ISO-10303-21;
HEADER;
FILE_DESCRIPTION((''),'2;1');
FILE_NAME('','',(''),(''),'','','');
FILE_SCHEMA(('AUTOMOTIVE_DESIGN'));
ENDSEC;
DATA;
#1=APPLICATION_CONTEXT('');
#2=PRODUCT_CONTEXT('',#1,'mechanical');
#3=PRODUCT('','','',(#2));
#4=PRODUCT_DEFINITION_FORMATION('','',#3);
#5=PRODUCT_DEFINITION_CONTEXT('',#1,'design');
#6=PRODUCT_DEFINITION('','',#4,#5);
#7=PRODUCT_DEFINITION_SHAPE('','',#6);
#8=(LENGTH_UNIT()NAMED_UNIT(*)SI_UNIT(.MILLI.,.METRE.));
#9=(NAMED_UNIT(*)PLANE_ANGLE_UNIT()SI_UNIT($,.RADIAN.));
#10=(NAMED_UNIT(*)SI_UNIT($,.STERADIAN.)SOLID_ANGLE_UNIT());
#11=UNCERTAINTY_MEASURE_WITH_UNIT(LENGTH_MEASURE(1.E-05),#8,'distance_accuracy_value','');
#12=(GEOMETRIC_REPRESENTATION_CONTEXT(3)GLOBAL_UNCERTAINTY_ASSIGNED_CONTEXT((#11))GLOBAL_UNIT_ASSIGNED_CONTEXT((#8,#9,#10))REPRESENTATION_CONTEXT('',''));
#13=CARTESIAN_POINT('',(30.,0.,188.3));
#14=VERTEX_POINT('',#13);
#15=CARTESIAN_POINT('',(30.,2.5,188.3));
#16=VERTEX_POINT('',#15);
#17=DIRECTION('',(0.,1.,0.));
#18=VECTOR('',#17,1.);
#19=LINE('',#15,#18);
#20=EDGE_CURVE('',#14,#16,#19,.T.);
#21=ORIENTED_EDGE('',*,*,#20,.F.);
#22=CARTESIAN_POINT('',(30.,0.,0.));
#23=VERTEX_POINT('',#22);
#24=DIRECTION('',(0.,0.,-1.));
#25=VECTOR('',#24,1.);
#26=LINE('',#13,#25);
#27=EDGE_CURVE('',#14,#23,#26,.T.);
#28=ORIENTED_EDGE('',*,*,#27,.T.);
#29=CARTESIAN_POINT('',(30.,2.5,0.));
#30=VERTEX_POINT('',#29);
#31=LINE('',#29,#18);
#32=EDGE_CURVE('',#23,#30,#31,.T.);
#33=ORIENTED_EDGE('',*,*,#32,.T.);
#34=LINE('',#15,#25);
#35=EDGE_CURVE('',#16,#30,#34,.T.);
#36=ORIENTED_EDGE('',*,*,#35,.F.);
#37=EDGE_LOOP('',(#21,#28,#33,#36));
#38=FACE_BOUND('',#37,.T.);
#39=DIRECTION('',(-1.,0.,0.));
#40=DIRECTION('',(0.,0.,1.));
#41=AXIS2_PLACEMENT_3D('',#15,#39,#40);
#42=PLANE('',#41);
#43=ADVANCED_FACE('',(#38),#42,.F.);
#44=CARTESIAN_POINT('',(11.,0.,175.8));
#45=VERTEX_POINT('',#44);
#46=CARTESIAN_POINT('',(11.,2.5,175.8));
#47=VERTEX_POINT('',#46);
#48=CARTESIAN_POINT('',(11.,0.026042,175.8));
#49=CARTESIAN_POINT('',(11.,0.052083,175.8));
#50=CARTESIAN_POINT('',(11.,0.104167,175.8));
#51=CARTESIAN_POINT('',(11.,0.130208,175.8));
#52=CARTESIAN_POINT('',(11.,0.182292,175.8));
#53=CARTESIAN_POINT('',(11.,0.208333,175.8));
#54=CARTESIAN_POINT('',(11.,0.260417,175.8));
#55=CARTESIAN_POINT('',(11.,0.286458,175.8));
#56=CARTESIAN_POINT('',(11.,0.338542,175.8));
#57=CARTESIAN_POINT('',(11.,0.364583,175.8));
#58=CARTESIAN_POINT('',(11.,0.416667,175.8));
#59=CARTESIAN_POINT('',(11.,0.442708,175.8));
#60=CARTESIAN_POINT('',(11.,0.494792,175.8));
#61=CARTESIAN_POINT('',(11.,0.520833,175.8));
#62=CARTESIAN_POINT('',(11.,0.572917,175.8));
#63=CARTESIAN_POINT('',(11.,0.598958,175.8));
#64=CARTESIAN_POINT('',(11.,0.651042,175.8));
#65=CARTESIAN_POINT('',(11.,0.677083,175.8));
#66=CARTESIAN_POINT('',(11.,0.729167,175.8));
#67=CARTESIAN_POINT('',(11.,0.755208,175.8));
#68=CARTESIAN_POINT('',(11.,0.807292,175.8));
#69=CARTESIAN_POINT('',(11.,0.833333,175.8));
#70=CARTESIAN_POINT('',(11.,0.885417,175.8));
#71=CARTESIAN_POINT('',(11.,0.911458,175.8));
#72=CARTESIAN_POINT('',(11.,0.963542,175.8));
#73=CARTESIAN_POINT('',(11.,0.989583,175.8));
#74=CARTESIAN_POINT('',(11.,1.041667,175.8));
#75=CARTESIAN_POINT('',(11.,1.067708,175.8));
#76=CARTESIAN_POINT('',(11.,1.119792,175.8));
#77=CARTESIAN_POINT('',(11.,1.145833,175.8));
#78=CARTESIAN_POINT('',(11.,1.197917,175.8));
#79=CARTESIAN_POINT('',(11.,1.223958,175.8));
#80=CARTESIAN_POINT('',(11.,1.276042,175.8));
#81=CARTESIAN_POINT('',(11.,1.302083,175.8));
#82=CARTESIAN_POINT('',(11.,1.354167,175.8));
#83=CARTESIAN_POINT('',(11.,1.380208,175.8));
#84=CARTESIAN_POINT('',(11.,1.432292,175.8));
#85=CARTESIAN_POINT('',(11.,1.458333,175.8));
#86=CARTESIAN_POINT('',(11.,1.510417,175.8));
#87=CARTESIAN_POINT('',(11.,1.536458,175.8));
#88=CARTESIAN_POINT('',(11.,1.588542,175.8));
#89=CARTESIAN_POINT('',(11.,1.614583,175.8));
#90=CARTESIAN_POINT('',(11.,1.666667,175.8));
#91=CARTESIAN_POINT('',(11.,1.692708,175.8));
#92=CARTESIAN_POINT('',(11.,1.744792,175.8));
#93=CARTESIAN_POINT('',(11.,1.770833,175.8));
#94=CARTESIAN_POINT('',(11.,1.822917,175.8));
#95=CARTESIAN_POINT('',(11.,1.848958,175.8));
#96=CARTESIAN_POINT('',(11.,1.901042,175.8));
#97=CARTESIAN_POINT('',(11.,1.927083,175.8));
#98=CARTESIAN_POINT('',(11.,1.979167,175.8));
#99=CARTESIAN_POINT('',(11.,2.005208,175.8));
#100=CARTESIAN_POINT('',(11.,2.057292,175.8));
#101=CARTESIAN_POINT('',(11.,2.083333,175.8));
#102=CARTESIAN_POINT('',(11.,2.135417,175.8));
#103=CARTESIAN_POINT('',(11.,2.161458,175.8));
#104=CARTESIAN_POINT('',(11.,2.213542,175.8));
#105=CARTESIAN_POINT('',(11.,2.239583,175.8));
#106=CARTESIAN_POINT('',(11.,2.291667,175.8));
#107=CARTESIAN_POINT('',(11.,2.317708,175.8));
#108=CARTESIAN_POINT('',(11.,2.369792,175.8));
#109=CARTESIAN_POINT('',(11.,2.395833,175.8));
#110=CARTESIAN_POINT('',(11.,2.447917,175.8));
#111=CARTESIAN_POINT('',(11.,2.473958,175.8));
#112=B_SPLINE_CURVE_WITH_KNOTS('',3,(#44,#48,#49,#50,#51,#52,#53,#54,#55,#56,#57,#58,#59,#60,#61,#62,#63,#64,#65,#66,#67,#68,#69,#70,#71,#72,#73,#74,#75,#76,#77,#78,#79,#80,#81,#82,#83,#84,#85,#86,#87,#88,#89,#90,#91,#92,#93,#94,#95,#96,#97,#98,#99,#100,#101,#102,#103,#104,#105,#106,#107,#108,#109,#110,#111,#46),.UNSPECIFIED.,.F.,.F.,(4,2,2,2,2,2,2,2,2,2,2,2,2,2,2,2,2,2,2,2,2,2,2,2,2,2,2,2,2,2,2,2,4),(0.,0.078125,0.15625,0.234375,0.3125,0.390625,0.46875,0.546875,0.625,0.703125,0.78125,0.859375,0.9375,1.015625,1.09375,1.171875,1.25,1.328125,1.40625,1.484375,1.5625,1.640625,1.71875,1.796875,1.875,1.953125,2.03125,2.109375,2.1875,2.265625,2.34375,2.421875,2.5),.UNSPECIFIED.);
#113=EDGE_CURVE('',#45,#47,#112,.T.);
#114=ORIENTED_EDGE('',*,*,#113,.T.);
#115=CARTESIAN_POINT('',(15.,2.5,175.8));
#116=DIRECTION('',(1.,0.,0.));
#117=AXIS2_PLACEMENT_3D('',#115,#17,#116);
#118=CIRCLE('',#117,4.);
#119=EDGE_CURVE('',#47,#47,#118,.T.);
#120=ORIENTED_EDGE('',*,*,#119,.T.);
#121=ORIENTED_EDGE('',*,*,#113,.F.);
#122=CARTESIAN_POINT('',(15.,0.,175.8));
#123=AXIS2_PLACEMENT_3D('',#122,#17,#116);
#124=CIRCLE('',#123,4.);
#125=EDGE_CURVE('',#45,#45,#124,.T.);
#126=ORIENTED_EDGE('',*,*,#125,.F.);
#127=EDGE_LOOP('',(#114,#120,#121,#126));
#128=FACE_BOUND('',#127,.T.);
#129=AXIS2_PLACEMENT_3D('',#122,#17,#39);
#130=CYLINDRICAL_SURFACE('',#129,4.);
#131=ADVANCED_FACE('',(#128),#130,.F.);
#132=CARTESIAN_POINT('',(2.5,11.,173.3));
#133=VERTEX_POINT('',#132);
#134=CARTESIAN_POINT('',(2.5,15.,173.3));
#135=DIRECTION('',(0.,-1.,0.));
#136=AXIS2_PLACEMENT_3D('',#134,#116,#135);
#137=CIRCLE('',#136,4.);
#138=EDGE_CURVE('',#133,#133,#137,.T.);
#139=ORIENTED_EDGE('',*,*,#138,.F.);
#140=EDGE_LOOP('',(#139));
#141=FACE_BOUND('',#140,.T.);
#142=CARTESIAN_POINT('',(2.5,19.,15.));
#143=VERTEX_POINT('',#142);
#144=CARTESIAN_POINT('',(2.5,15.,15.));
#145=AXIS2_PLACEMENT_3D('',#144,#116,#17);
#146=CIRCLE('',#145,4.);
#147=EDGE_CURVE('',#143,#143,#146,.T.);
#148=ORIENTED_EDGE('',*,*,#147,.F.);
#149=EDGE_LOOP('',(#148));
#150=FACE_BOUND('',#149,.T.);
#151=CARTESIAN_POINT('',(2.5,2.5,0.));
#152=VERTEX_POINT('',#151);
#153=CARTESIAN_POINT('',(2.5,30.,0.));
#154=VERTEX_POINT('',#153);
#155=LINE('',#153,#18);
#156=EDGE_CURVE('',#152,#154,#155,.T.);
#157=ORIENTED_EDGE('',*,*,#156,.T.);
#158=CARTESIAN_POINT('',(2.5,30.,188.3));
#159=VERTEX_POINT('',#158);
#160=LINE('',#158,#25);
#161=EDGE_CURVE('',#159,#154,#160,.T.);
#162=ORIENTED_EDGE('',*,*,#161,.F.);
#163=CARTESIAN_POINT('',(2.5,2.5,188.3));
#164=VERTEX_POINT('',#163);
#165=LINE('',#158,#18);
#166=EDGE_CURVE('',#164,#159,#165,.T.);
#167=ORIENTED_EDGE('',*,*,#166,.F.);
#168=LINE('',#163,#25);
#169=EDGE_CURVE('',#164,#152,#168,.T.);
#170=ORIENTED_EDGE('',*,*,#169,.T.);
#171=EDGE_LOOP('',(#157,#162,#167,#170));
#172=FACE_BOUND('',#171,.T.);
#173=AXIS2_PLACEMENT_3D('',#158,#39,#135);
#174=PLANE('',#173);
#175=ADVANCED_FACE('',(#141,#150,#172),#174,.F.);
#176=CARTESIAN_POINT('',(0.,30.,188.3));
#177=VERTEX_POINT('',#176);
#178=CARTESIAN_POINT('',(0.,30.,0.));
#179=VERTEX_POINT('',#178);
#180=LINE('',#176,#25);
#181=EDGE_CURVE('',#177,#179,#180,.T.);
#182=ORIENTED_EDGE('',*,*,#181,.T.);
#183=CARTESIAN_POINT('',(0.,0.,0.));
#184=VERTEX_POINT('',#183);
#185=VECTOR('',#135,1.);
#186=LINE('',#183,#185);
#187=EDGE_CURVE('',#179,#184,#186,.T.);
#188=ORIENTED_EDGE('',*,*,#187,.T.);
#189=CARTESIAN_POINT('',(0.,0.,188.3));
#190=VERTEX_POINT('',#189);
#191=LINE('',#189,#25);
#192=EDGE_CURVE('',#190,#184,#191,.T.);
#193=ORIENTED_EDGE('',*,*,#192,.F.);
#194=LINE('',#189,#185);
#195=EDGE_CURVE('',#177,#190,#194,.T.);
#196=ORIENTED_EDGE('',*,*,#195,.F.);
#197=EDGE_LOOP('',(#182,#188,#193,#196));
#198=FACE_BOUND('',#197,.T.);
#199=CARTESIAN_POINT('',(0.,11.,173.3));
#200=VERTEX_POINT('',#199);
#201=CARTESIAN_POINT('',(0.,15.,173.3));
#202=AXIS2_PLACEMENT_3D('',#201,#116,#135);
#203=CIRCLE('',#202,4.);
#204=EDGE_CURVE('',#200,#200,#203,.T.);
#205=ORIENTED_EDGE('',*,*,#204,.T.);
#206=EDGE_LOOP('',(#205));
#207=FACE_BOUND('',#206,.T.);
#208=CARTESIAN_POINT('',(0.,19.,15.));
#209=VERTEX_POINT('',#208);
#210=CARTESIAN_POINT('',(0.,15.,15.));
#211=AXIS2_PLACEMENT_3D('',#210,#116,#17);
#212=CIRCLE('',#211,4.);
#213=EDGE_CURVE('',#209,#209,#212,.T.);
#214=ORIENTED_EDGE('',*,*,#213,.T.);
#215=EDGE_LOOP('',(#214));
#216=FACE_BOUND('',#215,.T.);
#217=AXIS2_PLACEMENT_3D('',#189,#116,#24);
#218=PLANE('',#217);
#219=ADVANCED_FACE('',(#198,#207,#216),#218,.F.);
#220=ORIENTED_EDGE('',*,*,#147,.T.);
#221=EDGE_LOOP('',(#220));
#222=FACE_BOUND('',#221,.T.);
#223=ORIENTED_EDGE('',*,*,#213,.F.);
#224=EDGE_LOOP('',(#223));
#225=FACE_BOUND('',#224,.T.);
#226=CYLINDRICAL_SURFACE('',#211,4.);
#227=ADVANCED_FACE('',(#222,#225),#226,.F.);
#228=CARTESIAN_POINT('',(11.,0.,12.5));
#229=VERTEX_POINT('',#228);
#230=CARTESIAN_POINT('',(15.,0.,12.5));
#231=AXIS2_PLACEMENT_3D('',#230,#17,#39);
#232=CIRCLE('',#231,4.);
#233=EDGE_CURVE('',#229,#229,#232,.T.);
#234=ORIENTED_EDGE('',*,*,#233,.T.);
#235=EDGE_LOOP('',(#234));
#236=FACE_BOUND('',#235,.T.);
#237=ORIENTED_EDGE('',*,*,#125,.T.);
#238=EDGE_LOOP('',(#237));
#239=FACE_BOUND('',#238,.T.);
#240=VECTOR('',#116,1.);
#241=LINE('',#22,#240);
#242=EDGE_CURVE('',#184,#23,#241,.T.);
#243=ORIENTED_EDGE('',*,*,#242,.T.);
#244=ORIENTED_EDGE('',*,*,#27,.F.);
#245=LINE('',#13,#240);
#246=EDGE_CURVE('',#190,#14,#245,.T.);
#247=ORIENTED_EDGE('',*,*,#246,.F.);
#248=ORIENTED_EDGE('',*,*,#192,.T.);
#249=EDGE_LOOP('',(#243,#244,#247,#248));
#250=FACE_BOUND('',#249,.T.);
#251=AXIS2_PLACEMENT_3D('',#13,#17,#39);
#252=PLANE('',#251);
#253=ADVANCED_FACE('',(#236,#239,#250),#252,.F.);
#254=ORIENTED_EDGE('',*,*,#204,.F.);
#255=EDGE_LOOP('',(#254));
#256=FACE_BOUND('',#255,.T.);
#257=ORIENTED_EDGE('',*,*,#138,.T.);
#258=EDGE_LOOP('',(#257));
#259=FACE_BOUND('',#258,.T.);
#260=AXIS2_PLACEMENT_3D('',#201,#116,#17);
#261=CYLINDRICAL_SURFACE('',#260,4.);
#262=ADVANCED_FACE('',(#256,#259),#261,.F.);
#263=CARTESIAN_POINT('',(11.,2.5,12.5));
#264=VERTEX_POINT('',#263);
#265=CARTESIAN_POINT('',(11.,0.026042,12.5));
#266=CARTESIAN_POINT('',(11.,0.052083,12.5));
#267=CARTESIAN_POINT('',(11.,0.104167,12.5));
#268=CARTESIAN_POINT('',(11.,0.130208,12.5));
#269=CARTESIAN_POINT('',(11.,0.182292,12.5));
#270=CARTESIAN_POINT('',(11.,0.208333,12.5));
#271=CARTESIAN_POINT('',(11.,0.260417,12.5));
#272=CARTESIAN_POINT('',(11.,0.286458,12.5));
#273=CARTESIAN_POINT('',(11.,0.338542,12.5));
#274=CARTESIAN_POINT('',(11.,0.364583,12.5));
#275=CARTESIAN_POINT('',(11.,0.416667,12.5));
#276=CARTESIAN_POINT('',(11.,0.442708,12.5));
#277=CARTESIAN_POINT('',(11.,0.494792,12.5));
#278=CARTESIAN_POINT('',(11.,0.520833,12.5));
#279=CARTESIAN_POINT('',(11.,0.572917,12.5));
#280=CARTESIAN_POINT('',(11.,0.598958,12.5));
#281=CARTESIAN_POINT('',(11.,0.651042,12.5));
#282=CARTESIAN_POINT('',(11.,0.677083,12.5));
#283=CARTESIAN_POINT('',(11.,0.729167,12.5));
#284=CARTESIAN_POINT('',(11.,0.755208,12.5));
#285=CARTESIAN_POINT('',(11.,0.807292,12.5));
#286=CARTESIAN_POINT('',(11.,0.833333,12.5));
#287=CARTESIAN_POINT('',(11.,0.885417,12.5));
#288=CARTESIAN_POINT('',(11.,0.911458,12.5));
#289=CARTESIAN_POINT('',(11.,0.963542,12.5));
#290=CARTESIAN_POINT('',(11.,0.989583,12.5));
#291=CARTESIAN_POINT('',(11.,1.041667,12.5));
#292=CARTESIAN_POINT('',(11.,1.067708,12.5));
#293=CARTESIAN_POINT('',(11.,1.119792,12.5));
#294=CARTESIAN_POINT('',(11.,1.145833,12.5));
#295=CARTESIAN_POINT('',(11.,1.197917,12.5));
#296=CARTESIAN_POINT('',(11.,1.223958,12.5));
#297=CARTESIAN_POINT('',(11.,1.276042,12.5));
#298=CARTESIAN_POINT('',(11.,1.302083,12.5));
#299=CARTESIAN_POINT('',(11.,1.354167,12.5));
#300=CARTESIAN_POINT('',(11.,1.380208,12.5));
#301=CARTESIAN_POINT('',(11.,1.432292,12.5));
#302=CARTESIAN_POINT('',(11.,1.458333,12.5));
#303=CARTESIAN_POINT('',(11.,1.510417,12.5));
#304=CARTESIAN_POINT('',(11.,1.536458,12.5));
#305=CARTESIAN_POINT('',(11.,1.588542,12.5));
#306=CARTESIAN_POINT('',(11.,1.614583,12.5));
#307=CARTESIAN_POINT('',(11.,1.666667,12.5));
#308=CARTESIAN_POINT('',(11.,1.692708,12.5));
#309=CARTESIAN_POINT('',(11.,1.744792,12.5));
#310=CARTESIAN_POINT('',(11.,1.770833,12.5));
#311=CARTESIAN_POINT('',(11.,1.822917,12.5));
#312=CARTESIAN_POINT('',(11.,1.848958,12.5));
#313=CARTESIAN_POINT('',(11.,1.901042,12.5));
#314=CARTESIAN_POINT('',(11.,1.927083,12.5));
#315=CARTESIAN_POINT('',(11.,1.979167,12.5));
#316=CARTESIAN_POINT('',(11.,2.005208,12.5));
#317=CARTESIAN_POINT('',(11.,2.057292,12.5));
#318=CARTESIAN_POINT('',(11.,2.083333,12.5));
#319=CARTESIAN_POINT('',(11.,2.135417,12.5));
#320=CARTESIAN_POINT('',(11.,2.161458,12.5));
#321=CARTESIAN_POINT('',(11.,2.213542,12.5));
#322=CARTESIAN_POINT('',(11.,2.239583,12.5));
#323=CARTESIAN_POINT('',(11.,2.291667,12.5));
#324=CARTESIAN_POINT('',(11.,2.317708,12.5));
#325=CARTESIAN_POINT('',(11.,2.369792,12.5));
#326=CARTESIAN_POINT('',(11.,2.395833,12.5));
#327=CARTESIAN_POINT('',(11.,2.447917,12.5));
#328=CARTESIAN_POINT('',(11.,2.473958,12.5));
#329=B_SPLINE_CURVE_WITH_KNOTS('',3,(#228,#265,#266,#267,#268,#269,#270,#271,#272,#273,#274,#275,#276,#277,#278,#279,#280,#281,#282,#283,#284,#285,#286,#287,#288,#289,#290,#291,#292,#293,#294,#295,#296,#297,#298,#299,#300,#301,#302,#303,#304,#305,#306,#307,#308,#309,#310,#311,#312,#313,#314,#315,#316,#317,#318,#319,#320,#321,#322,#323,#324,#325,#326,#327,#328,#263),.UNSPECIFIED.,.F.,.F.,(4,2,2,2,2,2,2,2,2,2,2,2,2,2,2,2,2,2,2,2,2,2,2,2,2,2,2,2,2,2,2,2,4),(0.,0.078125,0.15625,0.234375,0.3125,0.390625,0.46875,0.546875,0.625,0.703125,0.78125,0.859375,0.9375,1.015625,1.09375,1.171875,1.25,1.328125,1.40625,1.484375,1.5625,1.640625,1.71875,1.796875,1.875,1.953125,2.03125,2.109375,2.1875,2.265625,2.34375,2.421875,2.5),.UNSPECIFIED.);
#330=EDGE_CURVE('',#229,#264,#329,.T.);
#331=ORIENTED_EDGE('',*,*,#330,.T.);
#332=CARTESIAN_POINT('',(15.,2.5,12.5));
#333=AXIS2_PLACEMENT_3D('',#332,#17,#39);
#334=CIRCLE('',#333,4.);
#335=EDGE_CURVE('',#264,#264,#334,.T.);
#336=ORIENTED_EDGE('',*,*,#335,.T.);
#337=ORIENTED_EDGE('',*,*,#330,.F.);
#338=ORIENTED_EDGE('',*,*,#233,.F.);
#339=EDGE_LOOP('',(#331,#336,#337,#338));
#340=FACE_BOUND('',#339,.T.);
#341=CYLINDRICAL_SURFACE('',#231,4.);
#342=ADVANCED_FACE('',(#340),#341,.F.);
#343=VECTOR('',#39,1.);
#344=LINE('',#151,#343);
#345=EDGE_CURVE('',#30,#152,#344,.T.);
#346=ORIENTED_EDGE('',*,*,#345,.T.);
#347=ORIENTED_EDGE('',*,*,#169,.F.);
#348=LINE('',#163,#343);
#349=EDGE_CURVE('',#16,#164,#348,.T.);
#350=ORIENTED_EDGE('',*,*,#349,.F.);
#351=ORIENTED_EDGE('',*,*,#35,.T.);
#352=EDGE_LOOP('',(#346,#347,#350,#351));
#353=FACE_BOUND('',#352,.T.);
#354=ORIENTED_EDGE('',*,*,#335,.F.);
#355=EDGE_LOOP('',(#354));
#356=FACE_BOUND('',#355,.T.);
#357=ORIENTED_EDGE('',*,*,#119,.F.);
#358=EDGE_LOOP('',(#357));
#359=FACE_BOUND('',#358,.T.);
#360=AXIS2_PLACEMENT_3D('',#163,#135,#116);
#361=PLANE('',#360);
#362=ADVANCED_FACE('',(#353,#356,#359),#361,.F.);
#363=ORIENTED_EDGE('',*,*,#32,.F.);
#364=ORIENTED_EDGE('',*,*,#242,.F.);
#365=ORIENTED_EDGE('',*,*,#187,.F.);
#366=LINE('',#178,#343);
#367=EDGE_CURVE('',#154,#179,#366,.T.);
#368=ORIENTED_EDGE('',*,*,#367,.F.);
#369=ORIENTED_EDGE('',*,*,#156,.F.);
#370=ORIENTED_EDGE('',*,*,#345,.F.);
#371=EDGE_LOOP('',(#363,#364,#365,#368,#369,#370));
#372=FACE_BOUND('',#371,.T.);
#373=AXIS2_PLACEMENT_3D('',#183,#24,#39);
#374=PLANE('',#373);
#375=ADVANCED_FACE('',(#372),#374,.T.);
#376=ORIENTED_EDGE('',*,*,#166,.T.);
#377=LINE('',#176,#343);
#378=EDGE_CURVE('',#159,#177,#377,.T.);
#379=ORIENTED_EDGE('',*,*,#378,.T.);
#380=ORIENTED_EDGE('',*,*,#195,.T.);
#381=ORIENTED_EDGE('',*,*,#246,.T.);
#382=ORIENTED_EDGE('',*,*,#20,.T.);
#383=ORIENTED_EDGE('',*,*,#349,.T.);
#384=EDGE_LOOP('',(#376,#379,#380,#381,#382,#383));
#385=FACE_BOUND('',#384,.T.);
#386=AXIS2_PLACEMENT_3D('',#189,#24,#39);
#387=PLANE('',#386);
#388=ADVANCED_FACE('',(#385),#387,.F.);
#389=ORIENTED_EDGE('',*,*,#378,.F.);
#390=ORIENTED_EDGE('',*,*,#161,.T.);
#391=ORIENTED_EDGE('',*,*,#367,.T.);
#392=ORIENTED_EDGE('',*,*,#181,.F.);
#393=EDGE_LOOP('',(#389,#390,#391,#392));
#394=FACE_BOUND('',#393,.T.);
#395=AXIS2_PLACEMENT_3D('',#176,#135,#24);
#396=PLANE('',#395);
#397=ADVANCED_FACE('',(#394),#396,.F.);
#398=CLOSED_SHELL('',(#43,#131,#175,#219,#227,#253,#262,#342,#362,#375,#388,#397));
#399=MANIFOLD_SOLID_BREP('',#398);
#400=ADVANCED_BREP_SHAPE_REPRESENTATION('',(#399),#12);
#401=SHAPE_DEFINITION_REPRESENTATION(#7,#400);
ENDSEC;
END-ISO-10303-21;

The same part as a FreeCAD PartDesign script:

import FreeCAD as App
import Part
import Sketcher

V = App.Vector
Q = App.Units.Quantity

doc = App.newDocument("Part")
params = doc.addObject("Spreadsheet::Sheet", "Params")
for row, (alias, value) in enumerate([
    ("sketch1_width", "30 mm"),
    ("sketch1_width2", "27.5 mm"),
    ("pad1_length", "188.3 mm"),
    ("sketch2_diameter", "8 mm"),
    ("sketch3_diameter", "8 mm"),
], start=1):
    params.set(f"A{row}", alias)
    params.set(f"B{row}", "=" + value)
    params.setAlias(f"B{row}", alias)

body = doc.addObject("PartDesign::Body", "Body")

# Sketch on XY plane
sketch1 = doc.addObject("Sketcher::SketchObject", "Sketch")
body.addObject(sketch1)
sketch1.AttachmentSupport = (doc.XY_Plane, [""])
sketch1.MapMode = "FlatFace"
sketch1.addGeometry(Part.LineSegment(V(0, 30, 0), V(0, 0, 0)), False)
sketch1.addGeometry(Part.LineSegment(V(0, 0, 0), V(30, 0, 0)), False)
sketch1.addGeometry(Part.LineSegment(V(30, 0, 0), V(30, 2.5, 0)), False)
sketch1.addGeometry(Part.LineSegment(V(30, 2.5, 0), V(2.5, 2.5, 0)), False)
sketch1.addGeometry(Part.LineSegment(V(2.5, 2.5, 0), V(2.5, 30, 0)), False)
sketch1.addGeometry(Part.LineSegment(V(2.5, 30, 0), V(0, 30, 0)), False)
sketch1.addConstraint(Sketcher.Constraint("Coincident", 0, 2, 1, 1))
sketch1.addConstraint(Sketcher.Constraint("Coincident", 1, 2, 2, 1))
sketch1.addConstraint(Sketcher.Constraint("Coincident", 2, 2, 3, 1))
sketch1.addConstraint(Sketcher.Constraint("Coincident", 3, 2, 4, 1))
sketch1.addConstraint(Sketcher.Constraint("Coincident", 4, 2, 5, 1))
sketch1.addConstraint(Sketcher.Constraint("Coincident", 5, 2, 0, 1))
sketch1.addConstraint(Sketcher.Constraint("Vertical", 0))
sketch1.addConstraint(Sketcher.Constraint("Horizontal", 1))
sketch1.addConstraint(Sketcher.Constraint("Vertical", 2))
sketch1.addConstraint(Sketcher.Constraint("Horizontal", 3))
sketch1.addConstraint(Sketcher.Constraint("Vertical", 4))
sketch1.addConstraint(Sketcher.Constraint("Horizontal", 5))
sketch1.addConstraint(Sketcher.Constraint("Coincident", 0, 2, -1, 1))
sketch1.addConstraint(Sketcher.Constraint("Equal", 1, 0))
sketch1.addConstraint(Sketcher.Constraint("Equal", 5, 2))
sketch1.addConstraint(Sketcher.Constraint("DistanceX", 1, 1, 1, 2, Q("30 mm")))
sketch1.addConstraint(Sketcher.Constraint("DistanceX", 3, 2, 3, 1, Q("27.5 mm")))
sketch1.setExpression("Constraints[15]", "Params.sketch1_width")
sketch1.setExpression("Constraints[16]", "Params.sketch1_width2")
pad1 = doc.addObject("PartDesign::Pad", "Pad")
body.addObject(pad1)
pad1.Profile = sketch1
pad1.setExpression("Length", "Params.pad1_length")

# Sketch on XZ plane
sketch2 = doc.addObject("Sketcher::SketchObject", "Sketch001")
body.addObject(sketch2)
sketch2.AttachmentSupport = (doc.XZ_Plane, [""])
sketch2.MapMode = "FlatFace"
sketch2.AttachmentOffset = App.Placement(V(0, 0, -2.5), App.Rotation())
sketch2.addGeometry(Part.Circle(V(15, 12.5, 0), V(0, 0, 1), 4), False)
sketch2.addGeometry(Part.Circle(V(15, 175.8, 0), V(0, 0, 1), 4), False)
sketch2.addConstraint(Sketcher.Constraint("Equal", 0, 1))
sketch2.addConstraint(Sketcher.Constraint("Vertical", 0, 3, 1, 3))
sketch2.addConstraint(Sketcher.Constraint("Diameter", 0, Q("8 mm")))
sketch2.addConstraint(Sketcher.Constraint("DistanceX", -1, 1, 0, 3, Q("15 mm")))
sketch2.addConstraint(Sketcher.Constraint("DistanceY", -1, 1, 0, 3, Q("12.5 mm")))
sketch2.addConstraint(Sketcher.Constraint("DistanceY", -1, 1, 1, 3, Q("175.8 mm")))
sketch2.setExpression("Constraints[2]", "Params.sketch2_diameter")
pocket1 = doc.addObject("PartDesign::Pocket", "Pocket")
body.addObject(pocket1)
pocket1.Profile = sketch2
pocket1.Type = "ThroughAll"
pocket1.Reversed = True

# Sketch on YZ plane
sketch3 = doc.addObject("Sketcher::SketchObject", "Sketch002")
body.addObject(sketch3)
sketch3.AttachmentSupport = (doc.YZ_Plane, [""])
sketch3.MapMode = "FlatFace"
sketch3.AttachmentOffset = App.Placement(V(0, 0, 2.5), App.Rotation())
sketch3.addGeometry(Part.Circle(V(15, 15, 0), V(0, 0, 1), 4), False)
sketch3.addGeometry(Part.Circle(V(15, 173.3, 0), V(0, 0, 1), 4), False)
sketch3.addConstraint(Sketcher.Constraint("Equal", 0, 1))
sketch3.addConstraint(Sketcher.Constraint("Vertical", 0, 3, 1, 3))
sketch3.addConstraint(Sketcher.Constraint("Diameter", 0, Q("8 mm")))
sketch3.addConstraint(Sketcher.Constraint("DistanceX", -1, 1, 0, 3, Q("15 mm")))
sketch3.addConstraint(Sketcher.Constraint("DistanceY", -1, 1, 0, 3, Q("15 mm")))
sketch3.addConstraint(Sketcher.Constraint("DistanceY", -1, 1, 1, 3, Q("173.3 mm")))
sketch3.setExpression("Constraints[2]", "Params.sketch3_diameter")
pocket2 = doc.addObject("PartDesign::Pocket", "Pocket001")
body.addObject(pocket2)
pocket2.Profile = sketch3
pocket2.Type = "ThroughAll"

doc.recompute()
